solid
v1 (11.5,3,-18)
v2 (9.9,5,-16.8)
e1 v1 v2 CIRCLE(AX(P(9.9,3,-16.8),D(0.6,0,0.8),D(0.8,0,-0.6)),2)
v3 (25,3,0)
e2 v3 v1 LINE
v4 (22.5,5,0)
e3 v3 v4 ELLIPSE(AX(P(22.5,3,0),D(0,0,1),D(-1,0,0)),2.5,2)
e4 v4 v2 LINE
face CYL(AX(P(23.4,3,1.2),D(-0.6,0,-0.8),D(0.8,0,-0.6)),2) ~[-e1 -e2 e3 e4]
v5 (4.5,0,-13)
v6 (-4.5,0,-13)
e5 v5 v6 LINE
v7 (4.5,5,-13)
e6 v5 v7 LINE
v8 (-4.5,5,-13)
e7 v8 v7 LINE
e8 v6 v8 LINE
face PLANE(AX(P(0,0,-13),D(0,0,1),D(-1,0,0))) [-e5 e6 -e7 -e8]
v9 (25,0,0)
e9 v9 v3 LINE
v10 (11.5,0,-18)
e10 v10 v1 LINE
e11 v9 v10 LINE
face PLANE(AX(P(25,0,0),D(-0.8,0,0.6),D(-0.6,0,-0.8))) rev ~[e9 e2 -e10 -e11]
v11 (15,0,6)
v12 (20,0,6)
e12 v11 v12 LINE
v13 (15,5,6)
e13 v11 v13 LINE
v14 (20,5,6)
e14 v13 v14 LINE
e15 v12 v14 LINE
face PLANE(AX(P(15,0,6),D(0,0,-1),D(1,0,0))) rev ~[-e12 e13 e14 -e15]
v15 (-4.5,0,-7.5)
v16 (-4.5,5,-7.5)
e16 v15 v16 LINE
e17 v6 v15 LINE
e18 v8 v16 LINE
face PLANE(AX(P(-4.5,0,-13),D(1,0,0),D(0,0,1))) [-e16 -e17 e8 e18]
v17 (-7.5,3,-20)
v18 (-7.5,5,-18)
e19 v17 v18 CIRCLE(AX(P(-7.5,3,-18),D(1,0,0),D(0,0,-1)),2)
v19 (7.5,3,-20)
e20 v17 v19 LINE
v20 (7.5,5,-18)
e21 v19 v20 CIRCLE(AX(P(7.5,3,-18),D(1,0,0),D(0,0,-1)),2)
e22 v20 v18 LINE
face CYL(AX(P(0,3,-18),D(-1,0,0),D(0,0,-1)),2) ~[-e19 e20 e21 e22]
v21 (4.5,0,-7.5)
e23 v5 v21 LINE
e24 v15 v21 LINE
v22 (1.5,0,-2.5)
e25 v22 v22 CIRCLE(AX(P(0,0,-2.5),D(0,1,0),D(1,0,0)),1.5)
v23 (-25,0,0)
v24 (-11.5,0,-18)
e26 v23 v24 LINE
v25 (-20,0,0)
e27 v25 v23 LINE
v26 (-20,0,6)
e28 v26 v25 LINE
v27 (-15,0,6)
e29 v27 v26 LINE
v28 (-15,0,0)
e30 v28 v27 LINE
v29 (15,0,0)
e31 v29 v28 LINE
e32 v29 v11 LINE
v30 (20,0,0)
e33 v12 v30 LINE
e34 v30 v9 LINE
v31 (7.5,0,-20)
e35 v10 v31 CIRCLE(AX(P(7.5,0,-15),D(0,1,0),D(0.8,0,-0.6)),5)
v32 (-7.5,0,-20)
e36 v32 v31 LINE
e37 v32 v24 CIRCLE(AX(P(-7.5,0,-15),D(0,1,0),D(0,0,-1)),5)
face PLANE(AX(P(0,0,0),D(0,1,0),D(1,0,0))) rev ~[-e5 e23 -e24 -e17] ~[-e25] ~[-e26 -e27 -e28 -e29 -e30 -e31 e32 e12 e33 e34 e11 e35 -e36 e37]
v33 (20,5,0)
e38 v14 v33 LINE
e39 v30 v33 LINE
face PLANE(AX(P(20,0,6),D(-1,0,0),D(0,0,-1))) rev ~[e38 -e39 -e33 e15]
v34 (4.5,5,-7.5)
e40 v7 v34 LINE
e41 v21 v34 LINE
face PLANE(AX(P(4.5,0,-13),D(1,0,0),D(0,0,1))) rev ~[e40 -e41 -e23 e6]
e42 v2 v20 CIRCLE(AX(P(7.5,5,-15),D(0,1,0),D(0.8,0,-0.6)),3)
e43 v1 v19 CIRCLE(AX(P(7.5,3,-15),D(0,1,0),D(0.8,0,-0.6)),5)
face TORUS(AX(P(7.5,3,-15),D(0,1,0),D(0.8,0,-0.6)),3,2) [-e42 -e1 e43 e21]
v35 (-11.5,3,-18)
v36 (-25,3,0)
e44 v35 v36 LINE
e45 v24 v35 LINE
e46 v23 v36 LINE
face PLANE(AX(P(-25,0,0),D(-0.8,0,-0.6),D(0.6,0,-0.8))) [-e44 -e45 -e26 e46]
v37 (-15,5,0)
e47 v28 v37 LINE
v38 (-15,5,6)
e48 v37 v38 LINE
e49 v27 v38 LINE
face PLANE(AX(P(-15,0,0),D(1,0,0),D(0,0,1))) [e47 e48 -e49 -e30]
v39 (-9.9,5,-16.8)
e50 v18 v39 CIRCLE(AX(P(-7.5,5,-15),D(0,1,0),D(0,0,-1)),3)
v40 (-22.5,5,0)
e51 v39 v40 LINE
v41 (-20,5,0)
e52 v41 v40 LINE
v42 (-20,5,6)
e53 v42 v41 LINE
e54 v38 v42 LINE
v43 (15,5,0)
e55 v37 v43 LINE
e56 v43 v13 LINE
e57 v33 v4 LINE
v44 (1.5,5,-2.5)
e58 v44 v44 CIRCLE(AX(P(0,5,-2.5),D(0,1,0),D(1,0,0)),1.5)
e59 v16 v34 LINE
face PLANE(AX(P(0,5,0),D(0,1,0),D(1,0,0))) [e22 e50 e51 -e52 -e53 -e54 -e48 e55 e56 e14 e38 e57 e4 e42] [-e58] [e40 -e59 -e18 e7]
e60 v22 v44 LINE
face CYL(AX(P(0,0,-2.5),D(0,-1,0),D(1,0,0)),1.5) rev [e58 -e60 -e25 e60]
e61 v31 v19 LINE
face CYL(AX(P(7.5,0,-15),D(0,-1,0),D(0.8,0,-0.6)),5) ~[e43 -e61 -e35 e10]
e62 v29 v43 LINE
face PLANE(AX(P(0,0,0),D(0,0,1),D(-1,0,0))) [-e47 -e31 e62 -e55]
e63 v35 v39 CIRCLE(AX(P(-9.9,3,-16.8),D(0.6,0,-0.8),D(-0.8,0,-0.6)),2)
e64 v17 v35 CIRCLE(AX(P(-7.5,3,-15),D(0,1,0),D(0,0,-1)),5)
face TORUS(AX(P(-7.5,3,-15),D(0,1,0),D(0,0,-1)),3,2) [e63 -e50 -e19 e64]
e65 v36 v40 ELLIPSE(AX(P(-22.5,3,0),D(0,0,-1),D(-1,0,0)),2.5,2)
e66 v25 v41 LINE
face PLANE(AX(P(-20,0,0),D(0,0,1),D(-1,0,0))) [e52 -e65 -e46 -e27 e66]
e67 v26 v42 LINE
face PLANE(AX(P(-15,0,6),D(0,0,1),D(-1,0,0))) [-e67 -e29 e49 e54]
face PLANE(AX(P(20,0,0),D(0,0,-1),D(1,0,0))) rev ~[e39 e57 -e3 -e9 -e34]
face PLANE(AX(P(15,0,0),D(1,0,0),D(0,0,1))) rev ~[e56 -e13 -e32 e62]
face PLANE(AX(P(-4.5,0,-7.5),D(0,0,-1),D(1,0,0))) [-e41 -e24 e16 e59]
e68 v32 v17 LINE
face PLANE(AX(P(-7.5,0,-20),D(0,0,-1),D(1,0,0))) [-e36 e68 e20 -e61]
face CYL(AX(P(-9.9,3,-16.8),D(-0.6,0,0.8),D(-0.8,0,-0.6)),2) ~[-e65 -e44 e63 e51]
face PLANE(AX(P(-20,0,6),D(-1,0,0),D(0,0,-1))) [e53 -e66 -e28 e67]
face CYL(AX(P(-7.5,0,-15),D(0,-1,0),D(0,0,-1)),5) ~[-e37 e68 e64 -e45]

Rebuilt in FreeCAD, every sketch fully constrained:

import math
import FreeCAD as App
import Part
import Sketcher
Q = App.Units.Quantity


def edges_at(feature, points):
    """Names of the edges that pass closest to the given points."""
    edges = feature.Shape.Edges
    near = lambda p: min(range(len(edges)), key=lambda i: edges[i].distToShape(Part.Vertex(*p))[0])
    return sorted({f"Edge{near(p) + 1}" for p in points})

doc = App.newDocument("Part")
body = doc.addObject("PartDesign::Body", "Body")

# Sketch on XZ plane
sketch1 = body.newObject("Sketcher::SketchObject", "Sketch")
sketch1.AttachmentSupport = (doc.getObject("XZ_Plane"), [""])
sketch1.MapMode = "FlatFace"
sketch1.addGeometry([
    Part.LineSegment(App.Vector(-15, 0, 0), App.Vector(15, 0, 0)),  # 0
    Part.LineSegment(App.Vector(15, 0, 0), App.Vector(15, 6, 0)),  # 1
    Part.LineSegment(App.Vector(15, 6, 0), App.Vector(20, 6, 0)),  # 2
    Part.LineSegment(App.Vector(20, 6, 0), App.Vector(20, 0, 0)),  # 3
    Part.LineSegment(App.Vector(20, 0, 0), App.Vector(25, 0, 0)),  # 4
    Part.LineSegment(App.Vector(25, 0, 0), App.Vector(11.5, -18, 0)),  # 5
    Part.ArcOfCircle(Part.Circle(App.Vector(7.5, -15, 0), App.Vector(0, 0, 1), 5), math.radians(-90), math.radians(-37)),  # 6
    Part.LineSegment(App.Vector(7.5, -20, 0), App.Vector(-7.5, -20, 0)),  # 7
    Part.ArcOfCircle(Part.Circle(App.Vector(-7.5, -15, 0), App.Vector(0, 0, 1), 5), math.radians(-143), math.radians(-90)),  # 8
    Part.LineSegment(App.Vector(-11.5, -18, 0), App.Vector(-25, 0, 0)),  # 9
    Part.LineSegment(App.Vector(-25, 0, 0), App.Vector(-20, 0, 0)),  # 10
    Part.LineSegment(App.Vector(-20, 0, 0), App.Vector(-20, 6, 0)),  # 11
    Part.LineSegment(App.Vector(-20, 6, 0), App.Vector(-15, 6, 0)),  # 12
    Part.LineSegment(App.Vector(-15, 6, 0), App.Vector(-15, 0, 0)),  # 13
    Part.Circle(App.Vector(0, -2.5, 0), App.Vector(0, 0, 1), 1.5),  # 14
    Part.LineSegment(App.Vector(-4.5, -13, 0), App.Vector(4.5, -13, 0)),  # 15
    Part.LineSegment(App.Vector(4.5, -13, 0), App.Vector(4.5, -7.5, 0)),  # 16
    Part.LineSegment(App.Vector(4.5, -7.5, 0), App.Vector(-4.5, -7.5, 0)),  # 17
    Part.LineSegment(App.Vector(-4.5, -7.5, 0), App.Vector(-4.5, -13, 0)),  # 18
], False)
sketch1.addConstraint([
    Sketcher.Constraint("Coincident", 0, 2, 1, 1),
    Sketcher.Constraint("Coincident", 1, 2, 2, 1),
    Sketcher.Constraint("Coincident", 2, 2, 3, 1),
    Sketcher.Constraint("Coincident", 3, 2, 4, 1),
    Sketcher.Constraint("Coincident", 4, 2, 5, 1),
    Sketcher.Constraint("Tangent", 5, 2, 6, 2),
    Sketcher.Constraint("Tangent", 6, 1, 7, 1),
    Sketcher.Constraint("Tangent", 7, 2, 8, 2),
    Sketcher.Constraint("Tangent", 8, 1, 9, 1),
    Sketcher.Constraint("Coincident", 9, 2, 10, 1),
    Sketcher.Constraint("Coincident", 10, 2, 11, 1),
    Sketcher.Constraint("Coincident", 11, 2, 12, 1),
    Sketcher.Constraint("Coincident", 12, 2, 13, 1),
    Sketcher.Constraint("Coincident", 13, 2, 0, 1),
    Sketcher.Constraint("Coincident", 15, 2, 16, 1),
    Sketcher.Constraint("Coincident", 16, 2, 17, 1),
    Sketcher.Constraint("Coincident", 17, 2, 18, 1),
    Sketcher.Constraint("Coincident", 18, 2, 15, 1),
    Sketcher.Constraint("Horizontal", 0),
    Sketcher.Constraint("Vertical", 1),
    Sketcher.Constraint("Horizontal", 2),
    Sketcher.Constraint("Vertical", 3),
    Sketcher.Constraint("Horizontal", 4),
    Sketcher.Constraint("Horizontal", 7),
    Sketcher.Constraint("Horizontal", 10),
    Sketcher.Constraint("Vertical", 11),
    Sketcher.Constraint("Horizontal", 12),
    Sketcher.Constraint("Vertical", 13),
    Sketcher.Constraint("Horizontal", 15),
    Sketcher.Constraint("Vertical", 16),
    Sketcher.Constraint("Horizontal", 17),
    Sketcher.Constraint("Vertical", 18),
    Sketcher.Constraint("Equal", 6, 8),
    Sketcher.Constraint("Symmetric", 4, 2, 9, 2, -1, 1),
    Sketcher.Constraint("Symmetric", 0, 2, 13, 2, -1, 1),
    Sketcher.Constraint("Symmetric", 5, 2, 8, 1, -2),
    Sketcher.Constraint("Symmetric", 2, 2, 11, 2, -2),
    Sketcher.Constraint("PointOnObject", 14, 3, -2),
    Sketcher.Constraint("Equal", 2, 4),
    Sketcher.Constraint("Diameter", 14, Q("3 mm")),
    Sketcher.Constraint("Radius", 6, Q("5 mm")),
    Sketcher.Constraint("DistanceX", 2, 1, 2, 2, Q("5 mm")),
    Sketcher.Constraint("DistanceY", 5, 2, 6, 3, Q("3 mm")),
    Sketcher.Constraint("DistanceX", 15, 2, 6, 3, Q("3 mm")),
    Sketcher.Constraint("DistanceY", 5, 2, 15, 2, Q("5 mm")),
    Sketcher.Constraint("DistanceY", 16, 2, 14, 3, Q("5 mm")),
    Sketcher.Constraint("DistanceX", 8, 3, 17, 2, Q("3 mm")),
    Sketcher.Constraint("DistanceY", 14, 3, -1, 1, Q("2.5 mm")),
    Sketcher.Constraint("DistanceX", 0, 1, 0, 2, Q("30 mm")),
    Sketcher.Constraint("DistanceX", 7, 2, 7, 1, Q("15 mm")),
    Sketcher.Constraint("DistanceY", 1, 1, 1, 2, Q("6 mm")),
])
pad1 = body.newObject("PartDesign::Pad", "Pad")
pad1.Profile = sketch1
pad1.Length = 5
pad1.Reversed = True
doc.recompute()

fillet = body.newObject("PartDesign::Fillet", "Fillet")
fillet.Base = (pad1, edges_at(pad1, [
    (18.25, 5, -9),
    (9.736, 5, -19.472),
    (0, 5, -20),
    (-9.736, 5, -19.472),
    (-18.25, 5, -9),
]))
fillet.Radius = 2

doc.recompute()
